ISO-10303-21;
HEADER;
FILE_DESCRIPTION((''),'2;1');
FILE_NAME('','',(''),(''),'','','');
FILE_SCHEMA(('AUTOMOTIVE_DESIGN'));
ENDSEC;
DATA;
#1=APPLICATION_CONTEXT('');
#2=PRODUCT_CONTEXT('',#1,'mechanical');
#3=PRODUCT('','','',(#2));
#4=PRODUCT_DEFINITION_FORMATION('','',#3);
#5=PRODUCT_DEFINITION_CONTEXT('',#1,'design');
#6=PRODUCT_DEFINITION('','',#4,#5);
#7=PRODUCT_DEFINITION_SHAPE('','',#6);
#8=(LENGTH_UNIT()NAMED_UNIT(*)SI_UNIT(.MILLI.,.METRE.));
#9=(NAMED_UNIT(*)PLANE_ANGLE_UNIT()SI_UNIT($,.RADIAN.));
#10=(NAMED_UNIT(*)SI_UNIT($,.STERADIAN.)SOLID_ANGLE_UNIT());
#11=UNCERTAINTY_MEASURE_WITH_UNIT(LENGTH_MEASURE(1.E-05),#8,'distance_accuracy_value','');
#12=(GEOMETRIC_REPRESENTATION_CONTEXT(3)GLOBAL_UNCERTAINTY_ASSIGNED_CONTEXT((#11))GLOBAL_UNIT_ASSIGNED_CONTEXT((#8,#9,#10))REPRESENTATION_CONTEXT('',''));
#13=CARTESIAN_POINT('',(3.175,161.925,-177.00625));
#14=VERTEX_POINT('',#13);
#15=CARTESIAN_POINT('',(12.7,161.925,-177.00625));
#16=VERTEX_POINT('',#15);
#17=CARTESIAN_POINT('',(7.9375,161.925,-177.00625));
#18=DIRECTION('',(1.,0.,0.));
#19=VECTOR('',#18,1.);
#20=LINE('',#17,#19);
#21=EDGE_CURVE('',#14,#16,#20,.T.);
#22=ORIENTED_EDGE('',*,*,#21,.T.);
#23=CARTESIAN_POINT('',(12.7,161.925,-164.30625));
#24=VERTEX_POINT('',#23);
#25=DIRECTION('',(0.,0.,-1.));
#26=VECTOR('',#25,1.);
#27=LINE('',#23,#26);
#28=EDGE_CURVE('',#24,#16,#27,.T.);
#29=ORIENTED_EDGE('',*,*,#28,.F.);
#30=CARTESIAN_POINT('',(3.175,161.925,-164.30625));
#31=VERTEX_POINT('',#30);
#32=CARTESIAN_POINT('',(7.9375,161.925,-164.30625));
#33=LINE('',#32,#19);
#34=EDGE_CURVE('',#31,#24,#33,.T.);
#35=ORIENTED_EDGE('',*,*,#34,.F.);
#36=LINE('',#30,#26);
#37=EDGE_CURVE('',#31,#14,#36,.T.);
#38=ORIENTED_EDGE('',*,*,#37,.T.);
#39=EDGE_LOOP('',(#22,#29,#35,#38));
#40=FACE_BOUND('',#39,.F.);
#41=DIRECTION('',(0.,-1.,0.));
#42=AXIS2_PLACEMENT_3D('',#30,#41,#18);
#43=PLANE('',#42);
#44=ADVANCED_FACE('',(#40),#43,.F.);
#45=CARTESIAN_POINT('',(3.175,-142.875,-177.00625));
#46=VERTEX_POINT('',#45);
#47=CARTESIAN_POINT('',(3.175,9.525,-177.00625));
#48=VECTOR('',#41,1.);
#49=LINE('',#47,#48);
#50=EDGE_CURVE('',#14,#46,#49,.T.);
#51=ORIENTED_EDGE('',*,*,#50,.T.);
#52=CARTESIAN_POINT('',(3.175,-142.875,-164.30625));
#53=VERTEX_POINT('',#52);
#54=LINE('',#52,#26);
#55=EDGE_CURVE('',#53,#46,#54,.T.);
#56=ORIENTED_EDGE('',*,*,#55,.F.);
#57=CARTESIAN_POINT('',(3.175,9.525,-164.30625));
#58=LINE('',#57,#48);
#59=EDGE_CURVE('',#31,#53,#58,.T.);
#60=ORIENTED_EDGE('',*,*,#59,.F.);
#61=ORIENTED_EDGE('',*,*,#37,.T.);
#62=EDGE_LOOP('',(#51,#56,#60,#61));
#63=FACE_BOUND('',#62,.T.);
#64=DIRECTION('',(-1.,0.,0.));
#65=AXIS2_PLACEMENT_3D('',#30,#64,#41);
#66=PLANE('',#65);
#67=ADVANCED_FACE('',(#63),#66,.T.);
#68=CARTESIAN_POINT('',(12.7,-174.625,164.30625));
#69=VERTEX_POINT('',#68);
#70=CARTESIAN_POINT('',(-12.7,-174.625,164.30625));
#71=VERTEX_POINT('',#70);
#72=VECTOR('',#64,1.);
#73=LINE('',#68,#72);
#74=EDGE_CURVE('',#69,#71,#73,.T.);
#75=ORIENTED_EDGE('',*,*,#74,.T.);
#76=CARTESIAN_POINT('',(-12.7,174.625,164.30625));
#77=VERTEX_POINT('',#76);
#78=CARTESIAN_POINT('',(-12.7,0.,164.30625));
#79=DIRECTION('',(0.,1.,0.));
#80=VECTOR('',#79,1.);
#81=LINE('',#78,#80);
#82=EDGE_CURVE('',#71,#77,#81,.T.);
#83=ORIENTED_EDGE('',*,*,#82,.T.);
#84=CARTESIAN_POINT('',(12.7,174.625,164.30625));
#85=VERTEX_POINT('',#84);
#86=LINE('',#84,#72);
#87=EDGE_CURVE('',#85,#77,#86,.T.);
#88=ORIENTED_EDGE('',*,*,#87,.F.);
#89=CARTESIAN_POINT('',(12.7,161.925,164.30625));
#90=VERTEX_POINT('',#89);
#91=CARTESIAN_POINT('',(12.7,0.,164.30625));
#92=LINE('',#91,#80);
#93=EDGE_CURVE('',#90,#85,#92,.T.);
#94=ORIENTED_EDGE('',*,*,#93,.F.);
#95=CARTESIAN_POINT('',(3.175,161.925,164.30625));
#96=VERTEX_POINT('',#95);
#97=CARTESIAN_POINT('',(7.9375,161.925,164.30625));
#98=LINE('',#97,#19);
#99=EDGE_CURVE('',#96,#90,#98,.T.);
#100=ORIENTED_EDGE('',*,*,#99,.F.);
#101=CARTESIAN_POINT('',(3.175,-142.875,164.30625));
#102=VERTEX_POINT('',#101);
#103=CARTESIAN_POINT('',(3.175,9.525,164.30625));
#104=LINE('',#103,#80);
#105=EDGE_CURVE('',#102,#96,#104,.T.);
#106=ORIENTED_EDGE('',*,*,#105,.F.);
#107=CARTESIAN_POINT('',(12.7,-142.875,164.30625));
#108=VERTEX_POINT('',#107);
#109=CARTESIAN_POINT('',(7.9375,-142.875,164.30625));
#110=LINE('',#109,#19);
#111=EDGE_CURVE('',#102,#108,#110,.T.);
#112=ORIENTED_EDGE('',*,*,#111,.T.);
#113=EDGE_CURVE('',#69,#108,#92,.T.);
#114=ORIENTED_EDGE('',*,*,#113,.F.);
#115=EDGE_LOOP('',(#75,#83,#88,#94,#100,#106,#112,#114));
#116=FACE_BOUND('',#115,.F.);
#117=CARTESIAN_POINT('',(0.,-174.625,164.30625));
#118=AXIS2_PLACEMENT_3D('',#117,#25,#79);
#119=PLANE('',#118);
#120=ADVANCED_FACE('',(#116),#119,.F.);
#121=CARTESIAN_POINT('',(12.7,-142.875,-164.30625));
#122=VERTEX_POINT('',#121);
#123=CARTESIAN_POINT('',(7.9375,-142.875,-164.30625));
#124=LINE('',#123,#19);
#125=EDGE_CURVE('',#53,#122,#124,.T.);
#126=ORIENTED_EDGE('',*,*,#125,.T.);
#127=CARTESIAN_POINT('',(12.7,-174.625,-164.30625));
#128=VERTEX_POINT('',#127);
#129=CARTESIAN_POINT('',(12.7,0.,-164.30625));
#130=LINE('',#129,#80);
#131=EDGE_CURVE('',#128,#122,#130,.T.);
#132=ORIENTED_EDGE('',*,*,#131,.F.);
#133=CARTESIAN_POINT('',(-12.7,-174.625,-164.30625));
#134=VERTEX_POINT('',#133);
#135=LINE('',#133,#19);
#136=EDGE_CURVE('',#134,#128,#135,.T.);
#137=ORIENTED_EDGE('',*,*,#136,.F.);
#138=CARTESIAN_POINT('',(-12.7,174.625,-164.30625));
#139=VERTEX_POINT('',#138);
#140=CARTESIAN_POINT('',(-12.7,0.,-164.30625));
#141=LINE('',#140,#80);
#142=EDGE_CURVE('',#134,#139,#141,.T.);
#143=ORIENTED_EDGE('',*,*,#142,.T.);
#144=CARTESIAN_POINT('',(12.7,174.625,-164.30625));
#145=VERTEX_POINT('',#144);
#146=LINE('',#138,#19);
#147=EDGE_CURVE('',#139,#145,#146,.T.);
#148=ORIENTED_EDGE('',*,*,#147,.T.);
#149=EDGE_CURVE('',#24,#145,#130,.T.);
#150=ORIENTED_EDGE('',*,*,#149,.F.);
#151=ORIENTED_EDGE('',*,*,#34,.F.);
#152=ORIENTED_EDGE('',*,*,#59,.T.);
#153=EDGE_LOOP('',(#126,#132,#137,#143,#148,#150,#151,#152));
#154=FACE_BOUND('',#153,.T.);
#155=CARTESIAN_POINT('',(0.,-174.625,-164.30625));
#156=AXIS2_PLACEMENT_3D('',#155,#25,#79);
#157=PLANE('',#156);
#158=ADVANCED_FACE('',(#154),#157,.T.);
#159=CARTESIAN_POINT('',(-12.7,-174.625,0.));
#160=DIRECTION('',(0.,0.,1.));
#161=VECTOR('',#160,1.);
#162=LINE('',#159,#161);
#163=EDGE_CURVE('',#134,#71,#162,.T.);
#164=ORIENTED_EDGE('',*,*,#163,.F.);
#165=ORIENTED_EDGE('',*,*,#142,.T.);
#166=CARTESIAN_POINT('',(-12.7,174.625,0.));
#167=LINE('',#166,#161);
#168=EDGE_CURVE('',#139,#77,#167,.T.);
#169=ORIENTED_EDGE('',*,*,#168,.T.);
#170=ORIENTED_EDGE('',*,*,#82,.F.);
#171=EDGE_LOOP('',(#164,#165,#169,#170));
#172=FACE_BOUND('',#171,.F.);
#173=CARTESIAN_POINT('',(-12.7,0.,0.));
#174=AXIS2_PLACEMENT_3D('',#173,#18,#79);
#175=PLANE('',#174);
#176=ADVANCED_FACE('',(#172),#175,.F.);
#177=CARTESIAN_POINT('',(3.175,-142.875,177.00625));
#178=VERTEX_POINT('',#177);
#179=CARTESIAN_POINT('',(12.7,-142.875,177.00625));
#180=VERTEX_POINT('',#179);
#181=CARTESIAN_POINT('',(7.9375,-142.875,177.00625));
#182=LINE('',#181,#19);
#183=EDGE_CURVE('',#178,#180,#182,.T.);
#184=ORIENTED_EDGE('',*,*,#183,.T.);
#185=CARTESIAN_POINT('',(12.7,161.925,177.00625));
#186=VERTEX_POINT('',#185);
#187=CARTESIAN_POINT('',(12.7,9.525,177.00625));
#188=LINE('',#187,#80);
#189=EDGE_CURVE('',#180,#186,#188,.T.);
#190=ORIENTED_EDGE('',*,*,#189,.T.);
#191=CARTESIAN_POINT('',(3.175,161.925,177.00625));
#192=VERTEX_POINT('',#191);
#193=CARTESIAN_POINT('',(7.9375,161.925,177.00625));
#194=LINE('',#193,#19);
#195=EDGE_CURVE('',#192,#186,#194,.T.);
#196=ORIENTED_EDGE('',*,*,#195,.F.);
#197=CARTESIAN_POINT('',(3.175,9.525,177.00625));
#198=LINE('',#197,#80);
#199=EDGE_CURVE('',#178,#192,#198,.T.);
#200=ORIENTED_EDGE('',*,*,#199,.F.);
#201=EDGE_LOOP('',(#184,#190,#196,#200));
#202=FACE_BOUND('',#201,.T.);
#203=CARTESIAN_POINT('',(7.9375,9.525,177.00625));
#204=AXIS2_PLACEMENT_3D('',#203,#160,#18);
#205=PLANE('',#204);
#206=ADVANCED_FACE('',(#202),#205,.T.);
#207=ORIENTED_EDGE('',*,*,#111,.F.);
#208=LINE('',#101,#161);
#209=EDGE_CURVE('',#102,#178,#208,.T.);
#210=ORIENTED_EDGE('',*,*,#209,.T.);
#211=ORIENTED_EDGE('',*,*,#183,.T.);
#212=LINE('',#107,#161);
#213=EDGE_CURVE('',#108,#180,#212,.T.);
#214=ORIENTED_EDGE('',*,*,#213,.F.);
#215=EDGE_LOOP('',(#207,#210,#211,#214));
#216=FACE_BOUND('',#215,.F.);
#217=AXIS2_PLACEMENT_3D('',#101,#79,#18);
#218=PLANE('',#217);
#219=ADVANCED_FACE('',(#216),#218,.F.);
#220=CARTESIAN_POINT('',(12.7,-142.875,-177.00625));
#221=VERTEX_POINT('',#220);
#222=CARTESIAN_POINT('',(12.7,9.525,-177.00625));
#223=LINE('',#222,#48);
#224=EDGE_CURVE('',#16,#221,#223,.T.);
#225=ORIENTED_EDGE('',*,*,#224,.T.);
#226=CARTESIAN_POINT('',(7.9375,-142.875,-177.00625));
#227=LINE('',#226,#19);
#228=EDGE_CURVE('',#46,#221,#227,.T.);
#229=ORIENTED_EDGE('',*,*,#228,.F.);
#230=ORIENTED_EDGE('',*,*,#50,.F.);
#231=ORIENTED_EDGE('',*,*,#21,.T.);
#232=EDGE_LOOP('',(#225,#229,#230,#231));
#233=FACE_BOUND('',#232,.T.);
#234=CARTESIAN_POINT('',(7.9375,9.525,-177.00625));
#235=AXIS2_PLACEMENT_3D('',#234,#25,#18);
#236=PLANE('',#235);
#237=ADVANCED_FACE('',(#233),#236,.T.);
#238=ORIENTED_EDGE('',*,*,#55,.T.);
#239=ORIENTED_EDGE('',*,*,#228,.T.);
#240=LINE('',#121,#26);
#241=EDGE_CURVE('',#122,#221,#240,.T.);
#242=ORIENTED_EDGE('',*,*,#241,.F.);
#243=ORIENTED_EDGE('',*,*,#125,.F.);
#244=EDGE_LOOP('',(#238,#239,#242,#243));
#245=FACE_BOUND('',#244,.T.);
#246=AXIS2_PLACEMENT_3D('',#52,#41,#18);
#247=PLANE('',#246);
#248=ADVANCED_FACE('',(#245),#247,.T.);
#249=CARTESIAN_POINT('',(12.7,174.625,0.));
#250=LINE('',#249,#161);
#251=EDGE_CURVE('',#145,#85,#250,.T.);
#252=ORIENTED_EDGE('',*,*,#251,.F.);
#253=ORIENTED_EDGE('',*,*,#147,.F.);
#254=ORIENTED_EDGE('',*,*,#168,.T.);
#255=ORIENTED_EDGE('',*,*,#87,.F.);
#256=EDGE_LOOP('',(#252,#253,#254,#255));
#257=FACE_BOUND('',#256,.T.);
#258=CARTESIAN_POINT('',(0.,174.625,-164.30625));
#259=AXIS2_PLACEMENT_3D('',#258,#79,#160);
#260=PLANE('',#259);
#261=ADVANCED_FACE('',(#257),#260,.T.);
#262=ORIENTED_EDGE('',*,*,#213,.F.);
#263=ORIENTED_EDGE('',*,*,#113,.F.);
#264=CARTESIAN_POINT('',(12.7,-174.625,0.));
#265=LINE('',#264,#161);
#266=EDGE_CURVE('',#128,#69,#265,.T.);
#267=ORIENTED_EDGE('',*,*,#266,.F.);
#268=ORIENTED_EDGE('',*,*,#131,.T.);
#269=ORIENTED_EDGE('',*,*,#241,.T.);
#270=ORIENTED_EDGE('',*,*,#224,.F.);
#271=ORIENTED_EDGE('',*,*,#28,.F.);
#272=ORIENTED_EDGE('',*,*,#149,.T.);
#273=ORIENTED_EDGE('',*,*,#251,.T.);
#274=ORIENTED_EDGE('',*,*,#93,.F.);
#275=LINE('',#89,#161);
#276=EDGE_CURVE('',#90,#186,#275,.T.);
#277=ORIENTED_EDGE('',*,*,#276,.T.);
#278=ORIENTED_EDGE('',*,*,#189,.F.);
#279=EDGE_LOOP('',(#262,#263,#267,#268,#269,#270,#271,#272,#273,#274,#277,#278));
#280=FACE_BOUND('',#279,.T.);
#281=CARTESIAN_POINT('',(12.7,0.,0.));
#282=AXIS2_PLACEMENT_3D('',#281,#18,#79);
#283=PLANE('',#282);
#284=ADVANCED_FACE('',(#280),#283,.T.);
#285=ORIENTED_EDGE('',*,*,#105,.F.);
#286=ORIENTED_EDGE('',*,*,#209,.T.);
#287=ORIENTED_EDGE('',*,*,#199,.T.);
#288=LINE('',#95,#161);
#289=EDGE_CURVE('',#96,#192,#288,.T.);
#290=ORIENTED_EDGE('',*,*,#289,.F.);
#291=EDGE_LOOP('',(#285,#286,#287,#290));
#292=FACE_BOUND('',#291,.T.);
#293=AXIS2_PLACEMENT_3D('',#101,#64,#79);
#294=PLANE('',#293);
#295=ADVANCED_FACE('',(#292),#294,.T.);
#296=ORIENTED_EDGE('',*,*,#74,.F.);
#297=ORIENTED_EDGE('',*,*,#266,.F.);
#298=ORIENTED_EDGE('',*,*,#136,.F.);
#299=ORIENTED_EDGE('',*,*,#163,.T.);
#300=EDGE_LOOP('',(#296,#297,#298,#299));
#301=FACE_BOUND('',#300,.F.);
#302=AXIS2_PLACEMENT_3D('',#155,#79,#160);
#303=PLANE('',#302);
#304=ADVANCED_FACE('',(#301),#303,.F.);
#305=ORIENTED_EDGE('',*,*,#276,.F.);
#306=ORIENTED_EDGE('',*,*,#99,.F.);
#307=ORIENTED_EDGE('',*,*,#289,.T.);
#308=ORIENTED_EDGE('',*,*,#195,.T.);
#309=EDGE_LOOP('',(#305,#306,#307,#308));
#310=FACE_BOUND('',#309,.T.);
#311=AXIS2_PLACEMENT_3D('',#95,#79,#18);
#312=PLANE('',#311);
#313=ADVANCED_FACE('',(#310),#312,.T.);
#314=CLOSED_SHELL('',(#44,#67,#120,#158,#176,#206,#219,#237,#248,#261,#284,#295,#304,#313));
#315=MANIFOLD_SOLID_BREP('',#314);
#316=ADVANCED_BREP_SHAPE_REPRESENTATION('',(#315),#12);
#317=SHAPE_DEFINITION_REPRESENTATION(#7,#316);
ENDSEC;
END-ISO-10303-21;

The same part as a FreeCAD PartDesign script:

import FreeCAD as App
import Part
import Sketcher

V = App.Vector
Q = App.Units.Quantity

doc = App.newDocument("Part")
body = doc.addObject("PartDesign::Body", "Body")

# Sketch on YZ plane
sketch1 = body.newObject("Sketcher::SketchObject", "Sketch")
sketch1.AttachmentSupport = (doc.getObject("YZ_Plane"), [""])
sketch1.MapMode = "FlatFace"
sketch1.addGeometry([
    Part.LineSegment(V(-175, 164, 0), V(-175, -164, 0)),
    Part.LineSegment(V(-175, -164, 0), V(175, -164, 0)),
    Part.LineSegment(V(175, -164, 0), V(175, 164, 0)),
    Part.LineSegment(V(175, 164, 0), V(-175, 164, 0)),
], False)
sketch1.addConstraint([
    Sketcher.Constraint("Coincident", 0, 2, 1, 1),
    Sketcher.Constraint("Coincident", 1, 2, 2, 1),
    Sketcher.Constraint("Coincident", 2, 2, 3, 1),
    Sketcher.Constraint("Coincident", 3, 2, 0, 1),
    Sketcher.Constraint("Vertical", 0),
    Sketcher.Constraint("Horizontal", 1),
    Sketcher.Constraint("Vertical", 2),
    Sketcher.Constraint("Horizontal", 3),
    Sketcher.Constraint("Symmetric", 0, 2, 2, 2, -1, 1),
    Sketcher.Constraint("DistanceX", 1, 1, 1, 2, Q("13.75 in")),
    Sketcher.Constraint("DistanceY", 0, 2, 0, 1, Q("12.9375 in")),
])
pad1 = body.newObject("PartDesign::Pad", "Pad")
pad1.Profile = sketch1
pad1.Length = Q("1 in")
pad1.Midplane = True

# Sketch on XY plane
sketch2 = body.newObject("Sketcher::SketchObject", "Sketch001")
sketch2.AttachmentSupport = (doc.getObject("XY_Plane"), [""])
sketch2.MapMode = "FlatFace"
sketch2.AttachmentOffset = App.Placement(V(0, 0, 6.46875 * 25.4), App.Rotation())
sketch2.addGeometry([
    Part.LineSegment(V(3, 162, 0), V(3, -143, 0)),
    Part.LineSegment(V(3, -143, 0), V(13, -143, 0)),
    Part.LineSegment(V(13, -143, 0), V(13, 162, 0)),
    Part.LineSegment(V(13, 162, 0), V(3, 162, 0)),
], False)
sketch2.addConstraint([
    Sketcher.Constraint("Coincident", 0, 2, 1, 1),
    Sketcher.Constraint("Coincident", 1, 2, 2, 1),
    Sketcher.Constraint("Coincident", 2, 2, 3, 1),
    Sketcher.Constraint("Coincident", 3, 2, 0, 1),
    Sketcher.Constraint("Vertical", 0),
    Sketcher.Constraint("Horizontal", 1),
    Sketcher.Constraint("Vertical", 2),
    Sketcher.Constraint("Horizontal", 3),
    Sketcher.Constraint("DistanceY", 0, 2, 0, 1, Q("12 in")),
    Sketcher.Constraint("DistanceX", -1, 1, 1, 2, Q("0.5 in")),
    Sketcher.Constraint("DistanceX", 1, 1, 1, 2, Q("0.375 in")),
    Sketcher.Constraint("DistanceY", 0, 2, -1, 1, Q("5.625 in")),
])
pad2 = body.newObject("PartDesign::Pad", "Pad001")
pad2.Profile = sketch2
pad2.Length = Q("0.5 in")

# Sketch on XY plane
sketch3 = body.newObject("Sketcher::SketchObject", "Sketch002")
sketch3.AttachmentSupport = (doc.getObject("XY_Plane"), [""])
sketch3.MapMode = "FlatFace"
sketch3.AttachmentOffset = App.Placement(V(0, 0, -6.46875 * 25.4), App.Rotation())
sketch3.addGeometry([
    Part.LineSegment(V(3, -143, 0), V(3, 162, 0)),
    Part.LineSegment(V(3, 162, 0), V(13, 162, 0)),
    Part.LineSegment(V(13, 162, 0), V(13, -143, 0)),
    Part.LineSegment(V(13, -143, 0), V(3, -143, 0)),
], False)
sketch3.addConstraint([
    Sketcher.Constraint("Coincident", 0, 2, 1, 1),
    Sketcher.Constraint("Coincident", 1, 2, 2, 1),
    Sketcher.Constraint("Coincident", 2, 2, 3, 1),
    Sketcher.Constraint("Coincident", 3, 2, 0, 1),
    Sketcher.Constraint("Vertical", 0),
    Sketcher.Constraint("Horizontal", 1),
    Sketcher.Constraint("Vertical", 2),
    Sketcher.Constraint("Horizontal", 3),
    Sketcher.Constraint("DistanceY", 0, 1, 0, 2, Q("12 in")),
    Sketcher.Constraint("DistanceX", -1, 1, 1, 2, Q("0.5 in")),
    Sketcher.Constraint("DistanceX", 1, 1, 1, 2, Q("0.375 in")),
    Sketcher.Constraint("DistanceY", -1, 1, 0, 2, Q("6.375 in")),
])
pad3 = body.newObject("PartDesign::Pad", "Pad002")
pad3.Profile = sketch3
pad3.Length = Q("0.5 in")
pad3.Reversed = True

doc.recompute()
